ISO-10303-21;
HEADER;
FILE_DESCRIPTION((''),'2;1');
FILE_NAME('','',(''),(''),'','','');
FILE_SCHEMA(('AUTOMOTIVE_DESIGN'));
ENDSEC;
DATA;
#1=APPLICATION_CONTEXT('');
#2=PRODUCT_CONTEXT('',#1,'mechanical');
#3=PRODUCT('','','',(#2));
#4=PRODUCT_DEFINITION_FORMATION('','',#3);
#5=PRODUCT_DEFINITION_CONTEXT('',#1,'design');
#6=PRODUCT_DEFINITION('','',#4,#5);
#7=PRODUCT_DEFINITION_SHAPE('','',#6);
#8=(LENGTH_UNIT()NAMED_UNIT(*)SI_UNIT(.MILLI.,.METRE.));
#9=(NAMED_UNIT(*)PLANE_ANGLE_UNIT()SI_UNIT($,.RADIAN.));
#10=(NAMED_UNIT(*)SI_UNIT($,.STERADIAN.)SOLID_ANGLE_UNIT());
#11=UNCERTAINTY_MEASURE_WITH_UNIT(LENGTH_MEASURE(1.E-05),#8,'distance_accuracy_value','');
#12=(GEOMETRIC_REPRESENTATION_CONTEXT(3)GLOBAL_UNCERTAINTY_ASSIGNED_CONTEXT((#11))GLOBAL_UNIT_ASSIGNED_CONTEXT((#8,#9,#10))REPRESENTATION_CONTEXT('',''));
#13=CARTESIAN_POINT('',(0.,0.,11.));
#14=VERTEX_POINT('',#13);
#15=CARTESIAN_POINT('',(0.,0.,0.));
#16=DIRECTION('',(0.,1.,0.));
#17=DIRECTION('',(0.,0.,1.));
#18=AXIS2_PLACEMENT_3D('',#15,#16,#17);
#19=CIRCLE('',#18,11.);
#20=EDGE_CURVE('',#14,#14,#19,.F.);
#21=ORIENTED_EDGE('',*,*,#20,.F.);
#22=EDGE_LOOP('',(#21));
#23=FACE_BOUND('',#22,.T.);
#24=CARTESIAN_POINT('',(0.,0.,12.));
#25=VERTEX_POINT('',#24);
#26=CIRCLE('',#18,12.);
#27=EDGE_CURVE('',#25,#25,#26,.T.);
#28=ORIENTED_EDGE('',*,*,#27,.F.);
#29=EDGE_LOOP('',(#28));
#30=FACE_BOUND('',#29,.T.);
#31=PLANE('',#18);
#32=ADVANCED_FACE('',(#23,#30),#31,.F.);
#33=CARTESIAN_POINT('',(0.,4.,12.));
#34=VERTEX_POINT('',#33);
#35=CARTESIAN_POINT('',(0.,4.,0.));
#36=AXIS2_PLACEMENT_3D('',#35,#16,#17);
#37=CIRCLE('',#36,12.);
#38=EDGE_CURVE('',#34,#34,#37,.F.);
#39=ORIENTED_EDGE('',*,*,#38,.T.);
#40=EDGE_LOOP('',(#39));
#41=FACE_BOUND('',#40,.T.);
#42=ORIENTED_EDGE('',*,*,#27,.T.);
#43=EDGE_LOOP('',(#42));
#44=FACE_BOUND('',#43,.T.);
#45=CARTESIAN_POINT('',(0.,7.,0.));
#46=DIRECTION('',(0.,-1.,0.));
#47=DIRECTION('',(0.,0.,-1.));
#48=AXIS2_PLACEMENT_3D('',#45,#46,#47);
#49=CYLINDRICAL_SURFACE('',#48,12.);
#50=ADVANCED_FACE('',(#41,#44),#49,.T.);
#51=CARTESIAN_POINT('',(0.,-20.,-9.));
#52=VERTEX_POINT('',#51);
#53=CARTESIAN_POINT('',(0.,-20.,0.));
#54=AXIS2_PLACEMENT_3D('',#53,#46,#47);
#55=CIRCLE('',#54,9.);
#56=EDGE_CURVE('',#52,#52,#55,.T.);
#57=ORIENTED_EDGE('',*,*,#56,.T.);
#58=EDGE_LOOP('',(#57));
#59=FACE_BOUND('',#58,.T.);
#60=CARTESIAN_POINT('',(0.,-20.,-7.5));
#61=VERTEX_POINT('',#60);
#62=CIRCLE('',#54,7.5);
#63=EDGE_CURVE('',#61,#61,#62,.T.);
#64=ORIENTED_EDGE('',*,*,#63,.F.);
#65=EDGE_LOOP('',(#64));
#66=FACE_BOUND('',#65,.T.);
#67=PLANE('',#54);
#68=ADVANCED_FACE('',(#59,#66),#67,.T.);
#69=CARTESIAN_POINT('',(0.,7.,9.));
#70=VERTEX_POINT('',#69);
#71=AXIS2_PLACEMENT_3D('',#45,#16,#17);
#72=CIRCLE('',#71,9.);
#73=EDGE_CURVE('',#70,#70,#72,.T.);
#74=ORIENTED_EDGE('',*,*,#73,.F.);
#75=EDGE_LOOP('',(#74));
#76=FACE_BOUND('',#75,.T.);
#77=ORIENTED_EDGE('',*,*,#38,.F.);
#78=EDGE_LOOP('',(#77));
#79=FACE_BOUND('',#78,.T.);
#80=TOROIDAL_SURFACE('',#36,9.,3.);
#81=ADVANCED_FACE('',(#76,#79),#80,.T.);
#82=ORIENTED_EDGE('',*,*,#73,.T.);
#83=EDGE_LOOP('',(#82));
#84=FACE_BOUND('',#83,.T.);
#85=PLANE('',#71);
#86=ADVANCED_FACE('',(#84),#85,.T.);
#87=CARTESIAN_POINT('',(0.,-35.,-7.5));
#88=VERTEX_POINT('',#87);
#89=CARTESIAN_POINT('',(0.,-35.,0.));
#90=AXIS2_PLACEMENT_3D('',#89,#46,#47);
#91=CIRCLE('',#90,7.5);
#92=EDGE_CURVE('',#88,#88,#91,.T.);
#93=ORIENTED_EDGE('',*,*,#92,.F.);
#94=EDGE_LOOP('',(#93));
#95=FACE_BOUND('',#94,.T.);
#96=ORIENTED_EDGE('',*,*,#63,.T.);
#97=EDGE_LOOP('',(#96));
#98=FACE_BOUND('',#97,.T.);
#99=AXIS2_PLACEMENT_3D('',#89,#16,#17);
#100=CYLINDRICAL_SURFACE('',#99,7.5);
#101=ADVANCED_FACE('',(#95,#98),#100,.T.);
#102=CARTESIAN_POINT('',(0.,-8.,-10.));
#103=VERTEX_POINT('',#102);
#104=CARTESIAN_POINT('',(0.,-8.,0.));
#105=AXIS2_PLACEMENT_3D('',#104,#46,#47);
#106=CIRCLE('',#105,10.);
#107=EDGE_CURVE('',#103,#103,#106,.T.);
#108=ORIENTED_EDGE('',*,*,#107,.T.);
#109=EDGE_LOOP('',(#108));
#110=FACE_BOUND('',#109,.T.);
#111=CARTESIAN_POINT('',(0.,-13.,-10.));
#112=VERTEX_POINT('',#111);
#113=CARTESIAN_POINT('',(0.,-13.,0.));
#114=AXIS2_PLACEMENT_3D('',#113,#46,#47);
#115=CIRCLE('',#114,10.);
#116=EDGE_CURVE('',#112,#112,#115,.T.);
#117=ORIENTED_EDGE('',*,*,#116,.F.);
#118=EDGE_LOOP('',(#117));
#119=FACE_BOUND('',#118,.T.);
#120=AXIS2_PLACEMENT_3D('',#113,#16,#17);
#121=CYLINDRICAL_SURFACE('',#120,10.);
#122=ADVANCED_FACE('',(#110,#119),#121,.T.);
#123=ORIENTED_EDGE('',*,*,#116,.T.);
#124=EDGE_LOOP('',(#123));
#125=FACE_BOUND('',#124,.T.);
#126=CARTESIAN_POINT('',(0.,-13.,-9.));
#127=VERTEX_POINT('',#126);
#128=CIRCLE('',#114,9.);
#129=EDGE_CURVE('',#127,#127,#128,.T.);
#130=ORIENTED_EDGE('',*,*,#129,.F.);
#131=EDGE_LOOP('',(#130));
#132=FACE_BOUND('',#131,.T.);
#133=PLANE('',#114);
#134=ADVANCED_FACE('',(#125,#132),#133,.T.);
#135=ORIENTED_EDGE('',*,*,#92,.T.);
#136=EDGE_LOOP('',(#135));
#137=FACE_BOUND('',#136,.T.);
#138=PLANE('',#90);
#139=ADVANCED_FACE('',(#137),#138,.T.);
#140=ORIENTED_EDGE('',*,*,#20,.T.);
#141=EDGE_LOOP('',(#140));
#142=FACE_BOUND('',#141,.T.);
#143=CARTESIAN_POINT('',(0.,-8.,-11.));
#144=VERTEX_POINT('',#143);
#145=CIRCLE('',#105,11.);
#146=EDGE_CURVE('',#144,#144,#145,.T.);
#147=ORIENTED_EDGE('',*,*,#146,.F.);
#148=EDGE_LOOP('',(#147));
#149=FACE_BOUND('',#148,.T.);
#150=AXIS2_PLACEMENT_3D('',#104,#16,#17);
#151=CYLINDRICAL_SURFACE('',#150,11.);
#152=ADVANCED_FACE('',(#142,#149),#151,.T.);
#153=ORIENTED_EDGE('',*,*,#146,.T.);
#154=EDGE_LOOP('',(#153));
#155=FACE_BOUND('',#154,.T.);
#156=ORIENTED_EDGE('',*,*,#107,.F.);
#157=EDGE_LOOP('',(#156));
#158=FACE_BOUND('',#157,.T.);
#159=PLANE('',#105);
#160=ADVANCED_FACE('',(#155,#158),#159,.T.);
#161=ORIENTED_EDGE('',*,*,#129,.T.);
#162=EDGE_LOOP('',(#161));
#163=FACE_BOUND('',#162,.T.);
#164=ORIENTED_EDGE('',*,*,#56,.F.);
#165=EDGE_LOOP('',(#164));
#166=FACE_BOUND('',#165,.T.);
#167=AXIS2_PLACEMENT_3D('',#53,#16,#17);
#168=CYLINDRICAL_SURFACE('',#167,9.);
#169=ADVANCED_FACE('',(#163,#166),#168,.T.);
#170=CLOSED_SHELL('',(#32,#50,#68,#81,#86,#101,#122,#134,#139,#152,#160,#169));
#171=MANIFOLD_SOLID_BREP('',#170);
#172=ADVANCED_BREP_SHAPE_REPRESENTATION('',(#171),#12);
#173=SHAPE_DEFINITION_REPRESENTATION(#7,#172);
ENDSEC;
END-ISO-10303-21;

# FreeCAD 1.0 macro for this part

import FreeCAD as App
import Part
import Sketcher
from FreeCAD import Vector
Q = App.Units.Quantity


def edges_at(feature, points):
    """Names of the edges that pass closest to the given points."""
    edges = feature.Shape.Edges
    near = lambda p: min(range(len(edges)), key=lambda i: edges[i].distToShape(Part.Vertex(*p))[0])
    return sorted({f"Edge{near(p) + 1}" for p in points})

doc = App.newDocument("Part")
body = doc.addObject("PartDesign::Body", "Body")

sketch1 = doc.addObject("Sketcher::SketchObject", "Sketch")
body.addObject(sketch1)
sketch1.AttachmentSupport = (doc.XZ_Plane, [""])
sketch1.MapMode = "FlatFace"
sketch1.addGeometry(Part.Circle(Vector(0, 0, 0), Vector(0, 0, 1), 12), False)
sketch1.addConstraint([
    Sketcher.Constraint("Coincident", 0, 3, -1, 1),
    Sketcher.Constraint("Diameter", 0, Q("24 mm")),
])
pad1 = doc.addObject("PartDesign::Pad", "Pad")
body.addObject(pad1)
pad1.Profile = sketch1
pad1.Length = 7
pad1.Reversed = True

sketch2 = doc.addObject("Sketcher::SketchObject", "Sketch001")
body.addObject(sketch2)
sketch2.AttachmentSupport = (doc.XZ_Plane, [""])
sketch2.MapMode = "FlatFace"
sketch2.addGeometry(Part.Circle(Vector(0, 0, 0), Vector(0, 0, 1), 11), False)
sketch2.addConstraint([
    Sketcher.Constraint("Coincident", 0, 3, -1, 1),
    Sketcher.Constraint("Diameter", 0, Q("22 mm")),
])
pad2 = doc.addObject("PartDesign::Pad", "Pad001")
body.addObject(pad2)
pad2.Profile = sketch2
pad2.Length = 8
doc.recompute()

fillet = doc.addObject("PartDesign::Fillet", "Fillet")
body.addObject(fillet)
fillet.Base = (pad2, edges_at(pad2, [(-12, 7, 0)]))
fillet.Radius = 3

sketch3 = doc.addObject("Sketcher::SketchObject", "Sketch002")
body.addObject(sketch3)
sketch3.AttachmentSupport = (doc.XZ_Plane, [""])
sketch3.MapMode = "FlatFace"
sketch3.AttachmentOffset = App.Placement(Vector(0, 0, 8), App.Rotation())
sketch3.addGeometry(Part.Circle(Vector(0, 0, 0), Vector(0, 0, 1), 10), False)
sketch3.addConstraint([
    Sketcher.Constraint("Coincident", 0, 3, -1, 1),
    Sketcher.Constraint("Diameter", 0, Q("20 mm")),
])
pad3 = doc.addObject("PartDesign::Pad", "Pad002")
body.addObject(pad3)
pad3.Profile = sketch3
pad3.Length = 5

sketch4 = doc.addObject("Sketcher::SketchObject", "Sketch003")
body.addObject(sketch4)
sketch4.AttachmentSupport = (doc.XZ_Plane, [""])
sketch4.MapMode = "FlatFace"
sketch4.AttachmentOffset = App.Placement(Vector(0, 0, 13), App.Rotation())
sketch4.addGeometry(Part.Circle(Vector(0, 0, 0), Vector(0, 0, 1), 9), False)
sketch4.addConstraint([
    Sketcher.Constraint("Coincident", 0, 3, -1, 1),
    Sketcher.Constraint("Diameter", 0, Q("18 mm")),
])
pad4 = doc.addObject("PartDesign::Pad", "Pad003")
body.addObject(pad4)
pad4.Profile = sketch4
pad4.Length = 7

sketch5 = doc.addObject("Sketcher::SketchObject", "Sketch004")
body.addObject(sketch5)
sketch5.AttachmentSupport = (doc.XZ_Plane, [""])
sketch5.MapMode = "FlatFace"
sketch5.AttachmentOffset = App.Placement(Vector(0, 0, 20), App.Rotation())
sketch5.addGeometry(Part.Circle(Vector(0, 0, 0), Vector(0, 0, 1), 8), False)
sketch5.addConstraint([
    Sketcher.Constraint("Coincident", 0, 3, -1, 1),
    Sketcher.Constraint("Diameter", 0, Q("15 mm")),
])
pad5 = doc.addObject("PartDesign::Pad", "Pad004")
body.addObject(pad5)
pad5.Profile = sketch5
pad5.Length = 15

doc.recompute()
